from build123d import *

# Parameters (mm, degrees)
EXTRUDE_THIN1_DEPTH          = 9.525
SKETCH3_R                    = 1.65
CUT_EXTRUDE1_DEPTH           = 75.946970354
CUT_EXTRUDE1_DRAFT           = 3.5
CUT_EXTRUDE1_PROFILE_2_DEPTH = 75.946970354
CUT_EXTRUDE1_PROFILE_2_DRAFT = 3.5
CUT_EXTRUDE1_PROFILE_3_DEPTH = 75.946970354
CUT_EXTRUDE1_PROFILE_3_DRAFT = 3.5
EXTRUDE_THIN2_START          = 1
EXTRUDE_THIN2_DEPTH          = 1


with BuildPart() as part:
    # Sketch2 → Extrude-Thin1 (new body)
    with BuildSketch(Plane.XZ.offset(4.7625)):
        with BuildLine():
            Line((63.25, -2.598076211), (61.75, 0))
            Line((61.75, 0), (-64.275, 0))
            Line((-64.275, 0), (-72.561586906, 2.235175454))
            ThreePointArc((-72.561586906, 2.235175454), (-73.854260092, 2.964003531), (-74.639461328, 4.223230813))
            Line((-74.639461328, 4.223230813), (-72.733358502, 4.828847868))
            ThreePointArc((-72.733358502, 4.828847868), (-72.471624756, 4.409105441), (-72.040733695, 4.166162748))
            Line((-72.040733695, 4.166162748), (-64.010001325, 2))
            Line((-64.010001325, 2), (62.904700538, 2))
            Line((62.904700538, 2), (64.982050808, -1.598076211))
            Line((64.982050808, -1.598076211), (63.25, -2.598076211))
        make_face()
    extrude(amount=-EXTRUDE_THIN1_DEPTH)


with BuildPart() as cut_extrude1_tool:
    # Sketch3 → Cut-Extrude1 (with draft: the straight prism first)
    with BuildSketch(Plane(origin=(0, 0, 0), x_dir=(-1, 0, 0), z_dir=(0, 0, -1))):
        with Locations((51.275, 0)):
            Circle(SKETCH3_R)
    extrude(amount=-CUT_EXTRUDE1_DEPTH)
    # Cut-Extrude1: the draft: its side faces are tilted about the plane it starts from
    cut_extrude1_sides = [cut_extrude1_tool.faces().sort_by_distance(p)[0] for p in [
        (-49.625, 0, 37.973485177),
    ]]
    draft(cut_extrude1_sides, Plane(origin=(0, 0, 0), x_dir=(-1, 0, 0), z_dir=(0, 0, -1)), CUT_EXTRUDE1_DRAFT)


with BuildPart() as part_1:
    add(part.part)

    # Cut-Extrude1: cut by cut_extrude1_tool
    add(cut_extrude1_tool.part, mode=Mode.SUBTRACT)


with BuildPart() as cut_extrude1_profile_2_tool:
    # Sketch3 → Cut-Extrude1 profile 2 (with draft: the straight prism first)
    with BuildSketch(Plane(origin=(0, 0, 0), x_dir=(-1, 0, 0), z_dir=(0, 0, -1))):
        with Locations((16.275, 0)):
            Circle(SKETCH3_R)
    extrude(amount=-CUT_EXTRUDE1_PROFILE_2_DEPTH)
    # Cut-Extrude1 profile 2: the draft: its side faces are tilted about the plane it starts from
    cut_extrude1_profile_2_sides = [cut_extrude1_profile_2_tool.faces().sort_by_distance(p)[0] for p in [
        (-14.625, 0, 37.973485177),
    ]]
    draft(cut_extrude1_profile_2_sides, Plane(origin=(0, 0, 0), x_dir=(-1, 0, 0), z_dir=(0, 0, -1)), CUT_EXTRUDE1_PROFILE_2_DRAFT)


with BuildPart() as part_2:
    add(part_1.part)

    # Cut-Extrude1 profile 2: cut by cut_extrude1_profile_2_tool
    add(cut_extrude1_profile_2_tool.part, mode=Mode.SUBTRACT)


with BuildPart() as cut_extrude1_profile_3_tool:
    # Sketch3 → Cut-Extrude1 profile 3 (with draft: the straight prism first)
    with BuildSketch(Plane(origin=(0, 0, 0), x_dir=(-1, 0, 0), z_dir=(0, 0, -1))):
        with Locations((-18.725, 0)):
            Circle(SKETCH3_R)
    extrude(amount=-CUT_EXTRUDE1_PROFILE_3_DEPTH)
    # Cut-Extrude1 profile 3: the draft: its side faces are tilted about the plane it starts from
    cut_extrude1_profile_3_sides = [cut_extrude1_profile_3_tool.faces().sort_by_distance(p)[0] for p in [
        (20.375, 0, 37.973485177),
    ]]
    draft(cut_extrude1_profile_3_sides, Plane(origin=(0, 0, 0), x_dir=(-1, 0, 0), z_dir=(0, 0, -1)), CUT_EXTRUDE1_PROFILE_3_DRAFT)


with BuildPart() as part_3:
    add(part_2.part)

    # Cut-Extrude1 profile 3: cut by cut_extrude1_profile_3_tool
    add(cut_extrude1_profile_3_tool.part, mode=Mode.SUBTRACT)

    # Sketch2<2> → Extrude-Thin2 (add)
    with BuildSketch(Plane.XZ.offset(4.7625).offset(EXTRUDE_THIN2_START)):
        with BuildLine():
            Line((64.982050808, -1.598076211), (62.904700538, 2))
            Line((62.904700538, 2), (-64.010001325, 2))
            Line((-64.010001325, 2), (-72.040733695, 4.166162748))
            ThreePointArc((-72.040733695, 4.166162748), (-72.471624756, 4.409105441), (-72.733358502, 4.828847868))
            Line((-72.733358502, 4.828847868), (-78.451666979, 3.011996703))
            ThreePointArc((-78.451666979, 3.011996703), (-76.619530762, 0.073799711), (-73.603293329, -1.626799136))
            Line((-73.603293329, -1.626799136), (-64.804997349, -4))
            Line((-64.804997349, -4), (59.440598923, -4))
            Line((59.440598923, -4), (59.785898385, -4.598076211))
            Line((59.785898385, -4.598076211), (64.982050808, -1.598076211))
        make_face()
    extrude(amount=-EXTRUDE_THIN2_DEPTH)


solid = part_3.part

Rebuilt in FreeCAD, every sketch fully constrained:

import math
import FreeCAD as App
import Part
import Sketcher

V = App.Vector
Q = App.Units.Quantity


def faces_at(feature, points):
    """Names of the faces that lie closest to the given points."""
    faces = feature.Shape.Faces
    near = lambda p: min(range(len(faces)), key=lambda i: faces[i].distToShape(Part.Vertex(*p))[0])
    return sorted({f"Face{near(p) + 1}" for p in points})

doc = App.newDocument("Part")
body = doc.addObject("PartDesign::Body", "Body")

# Sketch on XZ plane
sketch1 = body.newObject("Sketcher::SketchObject", "Sketch")
sketch1.AttachmentSupport = (doc.getObject("XZ_Plane"), [""])
sketch1.MapMode = "FlatFace"
sketch1.AttachmentOffset = App.Placement(V(0, 0, 4.7625), App.Rotation())
sketch1.addGeometry([
    Part.LineSegment(V(61.75, 0, 0), V(63.25, -2.598076, 0)),  # 0
    Part.LineSegment(V(63.25, -2.598076, 0), V(64.982051, -1.598076, 0)),  # 1
    Part.LineSegment(V(64.982051, -1.598076, 0), V(62.904701, 2, 0)),  # 2
    Part.LineSegment(V(62.904701, 2, 0), V(-64.010001, 2, 0)),  # 3
    Part.LineSegment(V(-64.010001, 2, 0), V(-72.040734, 4.166163, 0)),  # 4
    Part.ArcOfCircle(Part.Circle(V(-71.780307, 5.131656, 0), V(0, 0, 1), 1), math.radians(-162.373632), math.radians(-105.095377)),  # 5
    Part.LineSegment(V(-72.733359, 4.828848, 0), V(-74.639461, 4.223231, 0)),  # 6
    Part.ArcOfCircle(Part.Circle(V(-71.780307, 5.131656, 0), V(0, 0, 1), 3), math.radians(-162.373632), math.radians(-105.095377)),  # 7
    Part.LineSegment(V(-72.561587, 2.235175, 0), V(-64.275, 0, 0)),  # 8
    Part.LineSegment(V(-64.275, 0, 0), V(61.75, 0, 0)),  # 9
], False)
sketch1.addConstraint([
    Sketcher.Constraint("Coincident", 0, 2, 1, 1),
    Sketcher.Constraint("Coincident", 1, 2, 2, 1),
    Sketcher.Constraint("Coincident", 2, 2, 3, 1),
    Sketcher.Constraint("Coincident", 3, 2, 4, 1),
    Sketcher.Constraint("Tangent", 4, 2, 5, 2),
    Sketcher.Constraint("Coincident", 5, 1, 6, 1),
    Sketcher.Constraint("Coincident", 6, 2, 7, 1),
    Sketcher.Constraint("Tangent", 7, 2, 8, 1),
    Sketcher.Constraint("Coincident", 8, 2, 9, 1),
    Sketcher.Constraint("Coincident", 9, 2, 0, 1),
    Sketcher.Constraint("Horizontal", 3),
    Sketcher.Constraint("Horizontal", 9),
    Sketcher.Constraint("Coincident", 7, 3, 5, 3),
    Sketcher.Constraint("PointOnObject", 8, 2, -1),
    Sketcher.Constraint("Perpendicular", 0, 1),
    Sketcher.Constraint("Perpendicular", 1, 2),
    Sketcher.Constraint("Parallel", 4, 8),
    Sketcher.Constraint("Equal", 1, 6),
    Sketcher.Constraint("Radius", 5, 1.0),
    Sketcher.Constraint("Radius", 7, 3.0),
    Sketcher.Constraint("Angle", 0, Q("-60 deg")),
    Sketcher.Constraint("Distance", 0, 3.0),
    Sketcher.Constraint("DistanceY", -1, 1, 2, 2, 2.0),
    Sketcher.Constraint("DistanceX", 9, 1, 9, 2, 126.025),
    Sketcher.Constraint("DistanceX", -1, 1, 0, 2, 63.25),
    Sketcher.Constraint("DistanceX", 3, 2, -1, 1, 64.010001),
    Sketcher.Constraint("DistanceX", 5, 1, -1, 1, 72.733359),
    Sketcher.Constraint("DistanceX", 6, 2, -1, 1, 74.639461),
    Sketcher.Constraint("DistanceY", -1, 1, 6, 2, 4.223231),
])
pad1 = body.newObject("PartDesign::Pad", "Pad")
pad1.Profile = sketch1
pad1.Length = 9.525
pad1.Reversed = True
body2 = doc.addObject("PartDesign::Body", "Body001")

# Sketch on XY plane
sketch2 = body2.newObject("Sketcher::SketchObject", "Sketch001")
sketch2.AttachmentSupport = (doc.getObject("XY_Plane001"), [""])
sketch2.MapMode = "FlatFace"
sketch2.addGeometry(Part.Circle(V(-51.275, 0, 0), V(0, 0, 1), 1.65), False)
sketch2.addConstraint([
    Sketcher.Constraint("PointOnObject", 0, 3, -1),
    Sketcher.Constraint("Diameter", 0, 3.3),
    Sketcher.Constraint("DistanceX", 0, 3, -1, 1, 51.275),
])
pad2 = body2.newObject("PartDesign::Pad", "Pad001")
pad2.Profile = sketch2
pad2.Length = 75.94697
doc.recompute()

draft = body2.newObject("PartDesign::Draft", "Draft")
draft.Base = (pad2, faces_at(pad2, [(-49.625, 0, 37.973)]))
draft.NeutralPlane = (doc.getObject("XY_Plane001"), [""])
draft.Angle = 3.5
draft.Reversed = True
doc.recompute()

boolean = body.newObject("PartDesign::Boolean", "Boolean")
boolean.Type = "Cut"
boolean.addObjects([body2])
body3 = doc.addObject("PartDesign::Body", "Body002")

# Sketch on XY plane
sketch3 = body3.newObject("Sketcher::SketchObject", "Sketch002")
sketch3.AttachmentSupport = (doc.getObject("XY_Plane002"), [""])
sketch3.MapMode = "FlatFace"
sketch3.addGeometry(Part.Circle(V(-16.275, 0, 0), V(0, 0, 1), 1.65), False)
sketch3.addConstraint([
    Sketcher.Constraint("PointOnObject", 0, 3, -1),
    Sketcher.Constraint("Diameter", 0, 3.3),
    Sketcher.Constraint("DistanceX", 0, 3, -1, 1, 16.275),
])
pad3 = body3.newObject("PartDesign::Pad", "Pad002")
pad3.Profile = sketch3
pad3.Length = 75.94697
doc.recompute()

draft2 = body3.newObject("PartDesign::Draft", "Draft001")
draft2.Base = (pad3, faces_at(pad3, [(-14.625, 0, 37.973)]))
draft2.NeutralPlane = (doc.getObject("XY_Plane002"), [""])
draft2.Angle = 3.5
draft2.Reversed = True
doc.recompute()

boolean2 = body.newObject("PartDesign::Boolean", "Boolean001")
boolean2.Type = "Cut"
boolean2.addObjects([body3])
body4 = doc.addObject("PartDesign::Body", "Body003")

# Sketch on XY plane
sketch4 = body4.newObject("Sketcher::SketchObject", "Sketch003")
sketch4.AttachmentSupport = (doc.getObject("XY_Plane003"), [""])
sketch4.MapMode = "FlatFace"
sketch4.addGeometry(Part.Circle(V(18.725, 0, 0), V(0, 0, 1), 1.65), False)
sketch4.addConstraint([
    Sketcher.Constraint("PointOnObject", 0, 3, -1),
    Sketcher.Constraint("Diameter", 0, 3.3),
    Sketcher.Constraint("DistanceX", -1, 1, 0, 3, 18.725),
])
pad4 = body4.newObject("PartDesign::Pad", "Pad003")
pad4.Profile = sketch4
pad4.Length = 75.94697
doc.recompute()

draft3 = body4.newObject("PartDesign::Draft", "Draft002")
draft3.Base = (pad4, faces_at(pad4, [(20.375, 0, 37.973)]))
draft3.NeutralPlane = (doc.getObject("XY_Plane003"), [""])
draft3.Angle = 3.5
draft3.Reversed = True
doc.recompute()

boolean3 = body.newObject("PartDesign::Boolean", "Boolean002")
boolean3.Type = "Cut"
boolean3.addObjects([body4])

# Sketch on XZ plane
sketch5 = body.newObject("Sketcher::SketchObject", "Sketch004")
sketch5.AttachmentSupport = (doc.getObject("XZ_Plane"), [""])
sketch5.MapMode = "FlatFace"
sketch5.AttachmentOffset = App.Placement(V(0, 0, 5.7625), App.Rotation())
sketch5.addGeometry([
    Part.LineSegment(V(64.982051, -1.598076, 0), V(62.904701, 2, 0)),  # 0
    Part.LineSegment(V(62.904701, 2, 0), V(-64.010001, 2, 0)),  # 1
    Part.LineSegment(V(-64.010001, 2, 0), V(-72.040734, 4.166163, 0)),  # 2
    Part.ArcOfCircle(Part.Circle(V(-71.780307, 5.131656, 0), V(0, 0, 1), 1), math.radians(-162.373632), math.radians(-105.095377)),  # 3
    Part.LineSegment(V(-72.733359, 4.828848, 0), V(-78.451667, 3.011997, 0)),  # 4
    Part.ArcOfCircle(Part.Circle(V(-71.780307, 5.131656, 0), V(0, 0, 1), 7), math.radians(-162.373632), math.radians(-105.095377)),  # 5
    Part.LineSegment(V(-73.603293, -1.626799, 0), V(-64.804997, -4, 0)),  # 6
    Part.LineSegment(V(-64.804997, -4, 0), V(59.440599, -4, 0)),  # 7
    Part.LineSegment(V(59.440599, -4, 0), V(59.785898, -4.598076, 0)),  # 8
    Part.LineSegment(V(59.785898, -4.598076, 0), V(64.982051, -1.598076, 0)),  # 9
], False)
sketch5.addConstraint([
    Sketcher.Constraint("Coincident", 0, 2, 1, 1),
    Sketcher.Constraint("Coincident", 1, 2, 2, 1),
    Sketcher.Constraint("Tangent", 2, 2, 3, 2),
    Sketcher.Constraint("Coincident", 3, 1, 4, 1),
    Sketcher.Constraint("Coincident", 4, 2, 5, 1),
    Sketcher.Constraint("Tangent", 5, 2, 6, 1),
    Sketcher.Constraint("Coincident", 6, 2, 7, 1),
    Sketcher.Constraint("Coincident", 7, 2, 8, 1),
    Sketcher.Constraint("Coincident", 8, 2, 9, 1),
    Sketcher.Constraint("Coincident", 9, 2, 0, 1),
    Sketcher.Constraint("Horizontal", 1),
    Sketcher.Constraint("Horizontal", 7),
    Sketcher.Constraint("Coincident", 5, 3, 3, 3),
    Sketcher.Constraint("Parallel", 2, 6),
    Sketcher.Constraint("Parallel", 0, 8),
    Sketcher.Constraint("Perpendicular", 8, 9),
    Sketcher.Constraint("Equal", 4, 9),
    Sketcher.Constraint("Radius", 3, 1.0),
    Sketcher.Constraint("Radius", 5, 7.0),
    Sketcher.Constraint("Angle", 0, Q("120 deg")),
    Sketcher.Constraint("DistanceY", -1, 1, 0, 2, 2.0),
    Sketcher.Constraint("DistanceY", 6, 2, -1, 1, 4.0),
    Sketcher.Constraint("DistanceX", 1, 2, -1, 1, 64.010001),
    Sketcher.Constraint("DistanceX", 1, 2, 1, 1, 126.914702),
    Sketcher.Constraint("Distance", 0, 4.154701),
    Sketcher.Constraint("DistanceY", 5, 2, -1, 1, 1.626799),
    Sketcher.Constraint("DistanceX", 7, 1, 7, 2, 124.245596),
    Sketcher.Constraint("DistanceX", 3, 1, -1, 1, 72.733359),
    Sketcher.Constraint("DistanceX", 4, 2, 3, 1, 5.718308),
])
pad5 = body.newObject("PartDesign::Pad", "Pad004")
pad5.Profile = sketch5
pad5.Length = 1
pad5.Reversed = True

doc.recompute()
